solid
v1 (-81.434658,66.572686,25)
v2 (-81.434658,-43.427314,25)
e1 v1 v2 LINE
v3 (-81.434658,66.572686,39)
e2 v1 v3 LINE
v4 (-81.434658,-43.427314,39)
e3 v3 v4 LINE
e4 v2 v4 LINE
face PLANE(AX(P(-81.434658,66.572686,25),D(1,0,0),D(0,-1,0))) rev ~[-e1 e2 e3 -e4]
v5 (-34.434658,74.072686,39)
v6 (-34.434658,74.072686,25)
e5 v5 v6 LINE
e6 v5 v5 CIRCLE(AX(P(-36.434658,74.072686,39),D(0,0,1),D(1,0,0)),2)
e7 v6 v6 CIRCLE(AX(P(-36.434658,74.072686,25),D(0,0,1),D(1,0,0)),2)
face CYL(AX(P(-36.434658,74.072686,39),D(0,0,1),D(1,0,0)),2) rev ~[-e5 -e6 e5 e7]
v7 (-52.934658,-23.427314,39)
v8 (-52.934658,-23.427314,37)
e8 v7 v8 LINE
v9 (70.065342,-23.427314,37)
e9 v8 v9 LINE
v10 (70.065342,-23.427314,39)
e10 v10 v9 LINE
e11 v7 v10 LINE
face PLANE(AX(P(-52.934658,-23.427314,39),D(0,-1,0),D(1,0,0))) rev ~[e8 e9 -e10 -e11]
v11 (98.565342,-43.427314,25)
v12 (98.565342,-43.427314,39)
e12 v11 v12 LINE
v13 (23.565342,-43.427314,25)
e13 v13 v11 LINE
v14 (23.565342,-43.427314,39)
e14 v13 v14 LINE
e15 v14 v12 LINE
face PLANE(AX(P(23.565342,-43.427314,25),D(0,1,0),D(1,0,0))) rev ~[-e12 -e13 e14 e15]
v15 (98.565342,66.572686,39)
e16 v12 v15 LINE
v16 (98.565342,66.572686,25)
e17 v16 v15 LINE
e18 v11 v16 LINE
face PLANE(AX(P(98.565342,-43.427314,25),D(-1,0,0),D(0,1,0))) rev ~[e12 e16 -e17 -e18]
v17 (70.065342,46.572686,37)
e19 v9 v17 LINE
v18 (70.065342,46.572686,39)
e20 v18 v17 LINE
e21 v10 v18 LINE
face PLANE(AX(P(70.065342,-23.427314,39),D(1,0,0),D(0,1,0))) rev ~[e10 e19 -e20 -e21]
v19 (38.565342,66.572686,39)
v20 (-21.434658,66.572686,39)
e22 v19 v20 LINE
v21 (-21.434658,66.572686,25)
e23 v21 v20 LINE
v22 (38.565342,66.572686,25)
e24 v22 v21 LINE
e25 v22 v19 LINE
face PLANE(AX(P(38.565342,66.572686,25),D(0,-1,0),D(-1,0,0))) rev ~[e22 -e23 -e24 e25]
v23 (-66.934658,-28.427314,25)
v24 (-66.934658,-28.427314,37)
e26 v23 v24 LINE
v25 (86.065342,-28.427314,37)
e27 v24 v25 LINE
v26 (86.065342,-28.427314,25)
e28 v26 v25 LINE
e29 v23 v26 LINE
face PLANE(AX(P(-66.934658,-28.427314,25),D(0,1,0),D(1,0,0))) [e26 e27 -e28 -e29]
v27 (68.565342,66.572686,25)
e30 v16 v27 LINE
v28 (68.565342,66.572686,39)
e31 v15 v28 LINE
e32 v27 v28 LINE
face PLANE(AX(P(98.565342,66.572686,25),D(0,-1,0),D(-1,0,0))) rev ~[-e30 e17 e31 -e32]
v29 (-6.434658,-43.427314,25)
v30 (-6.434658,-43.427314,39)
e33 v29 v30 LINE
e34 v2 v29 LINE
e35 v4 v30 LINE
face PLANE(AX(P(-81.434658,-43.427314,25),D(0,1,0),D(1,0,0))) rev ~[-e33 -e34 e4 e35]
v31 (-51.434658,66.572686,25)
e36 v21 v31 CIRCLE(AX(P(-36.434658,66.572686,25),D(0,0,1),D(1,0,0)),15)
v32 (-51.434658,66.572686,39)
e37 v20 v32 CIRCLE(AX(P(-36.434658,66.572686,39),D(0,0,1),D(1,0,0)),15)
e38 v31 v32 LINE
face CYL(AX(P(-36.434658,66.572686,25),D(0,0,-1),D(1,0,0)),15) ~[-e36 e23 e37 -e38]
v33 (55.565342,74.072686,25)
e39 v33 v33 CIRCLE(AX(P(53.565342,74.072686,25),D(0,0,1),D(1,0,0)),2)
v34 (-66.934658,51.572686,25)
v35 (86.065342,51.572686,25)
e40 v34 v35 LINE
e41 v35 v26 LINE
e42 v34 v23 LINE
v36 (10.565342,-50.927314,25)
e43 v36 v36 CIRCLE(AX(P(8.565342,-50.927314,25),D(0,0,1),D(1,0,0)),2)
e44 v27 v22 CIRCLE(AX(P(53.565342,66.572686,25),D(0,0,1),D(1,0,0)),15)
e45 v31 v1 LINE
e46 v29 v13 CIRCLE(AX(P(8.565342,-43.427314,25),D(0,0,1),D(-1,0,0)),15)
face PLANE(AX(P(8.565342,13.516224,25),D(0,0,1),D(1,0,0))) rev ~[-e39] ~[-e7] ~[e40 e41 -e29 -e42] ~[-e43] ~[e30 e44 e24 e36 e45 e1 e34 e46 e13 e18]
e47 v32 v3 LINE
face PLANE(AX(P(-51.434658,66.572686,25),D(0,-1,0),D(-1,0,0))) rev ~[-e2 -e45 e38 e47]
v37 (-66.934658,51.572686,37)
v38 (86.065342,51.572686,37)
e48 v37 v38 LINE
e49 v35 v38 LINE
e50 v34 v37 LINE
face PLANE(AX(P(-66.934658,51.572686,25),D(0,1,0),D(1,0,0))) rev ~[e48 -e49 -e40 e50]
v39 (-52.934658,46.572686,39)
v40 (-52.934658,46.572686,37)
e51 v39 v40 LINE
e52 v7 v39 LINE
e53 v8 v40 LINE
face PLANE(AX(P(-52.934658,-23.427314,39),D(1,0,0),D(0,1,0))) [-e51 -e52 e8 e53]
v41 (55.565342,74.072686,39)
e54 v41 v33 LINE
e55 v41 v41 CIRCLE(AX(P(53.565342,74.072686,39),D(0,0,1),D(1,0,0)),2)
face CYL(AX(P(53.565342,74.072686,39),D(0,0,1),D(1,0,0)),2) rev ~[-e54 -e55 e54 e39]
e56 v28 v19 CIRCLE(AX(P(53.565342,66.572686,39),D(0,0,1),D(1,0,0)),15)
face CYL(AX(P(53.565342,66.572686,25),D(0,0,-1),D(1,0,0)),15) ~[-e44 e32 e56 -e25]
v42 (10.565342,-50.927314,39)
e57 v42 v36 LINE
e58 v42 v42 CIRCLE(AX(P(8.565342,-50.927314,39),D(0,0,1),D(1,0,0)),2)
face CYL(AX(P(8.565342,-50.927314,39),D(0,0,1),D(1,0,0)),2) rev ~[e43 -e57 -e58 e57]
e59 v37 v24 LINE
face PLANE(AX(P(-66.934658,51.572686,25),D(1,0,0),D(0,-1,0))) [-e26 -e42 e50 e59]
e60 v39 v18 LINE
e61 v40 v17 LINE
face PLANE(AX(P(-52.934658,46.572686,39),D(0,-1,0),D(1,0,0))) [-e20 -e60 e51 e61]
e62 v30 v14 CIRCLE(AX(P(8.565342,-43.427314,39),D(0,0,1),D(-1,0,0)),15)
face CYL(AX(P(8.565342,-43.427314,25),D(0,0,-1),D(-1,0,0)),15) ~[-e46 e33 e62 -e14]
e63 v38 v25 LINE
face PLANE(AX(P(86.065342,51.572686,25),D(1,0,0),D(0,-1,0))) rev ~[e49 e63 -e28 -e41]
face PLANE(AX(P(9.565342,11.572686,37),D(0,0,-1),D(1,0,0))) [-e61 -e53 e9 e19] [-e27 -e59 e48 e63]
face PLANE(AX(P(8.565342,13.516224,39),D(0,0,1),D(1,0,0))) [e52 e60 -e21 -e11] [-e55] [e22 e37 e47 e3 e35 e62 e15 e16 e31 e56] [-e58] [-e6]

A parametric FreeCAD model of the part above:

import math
import FreeCAD as App
import Part
import Sketcher

V = App.Vector

doc = App.newDocument("Part")
body = doc.addObject("PartDesign::Body", "Body")

sketch1 = doc.addObject("Sketcher::SketchObject", "Sketch")
body.addObject(sketch1)
sketch1.AttachmentSupport = (doc.XY_Plane, [""])
sketch1.MapMode = "FlatFace"
sketch1.addGeometry([
    Part.LineSegment(V(-51.4, 66.6, 0), V(-81.4, 66.6, 0)),
    Part.LineSegment(V(-81.4, 66.6, 0), V(-81.4, -43.4, 0)),
    Part.LineSegment(V(-81.4, -43.4, 0), V(-6.4, -43.4, 0)),
    Part.ArcOfCircle(Part.Circle(V(8.6, -43.4, 0), V(0, 0, 1), 15), math.radians(180), math.radians(360)),
    Part.LineSegment(V(23.6, -43.4, 0), V(98.6, -43.4, 0)),
    Part.LineSegment(V(98.6, -43.4, 0), V(98.6, 66.6, 0)),
    Part.LineSegment(V(98.6, 66.6, 0), V(68.6, 66.6, 0)),
    Part.ArcOfCircle(Part.Circle(V(53.6, 66.6, 0), V(0, 0, 1), 15), math.radians(0), math.radians(180)),
    Part.LineSegment(V(38.6, 66.6, 0), V(-21.4, 66.6, 0)),
    Part.ArcOfCircle(Part.Circle(V(-36.4, 66.6, 0), V(0, 0, 1), 15), math.radians(0), math.radians(180)),
    Part.Circle(V(8.6, -50.9, 0), V(0, 0, 1), 2),
    Part.Circle(V(-36.4, 74.1, 0), V(0, 0, 1), 2),
    Part.Circle(V(53.6, 74.1, 0), V(0, 0, 1), 2),
], False)
sketch1.addConstraint([
    Sketcher.Constraint("Coincident", 0, 2, 1, 1),
    Sketcher.Constraint("Coincident", 1, 2, 2, 1),
    Sketcher.Constraint("Coincident", 2, 2, 3, 1),
    Sketcher.Constraint("Coincident", 3, 2, 4, 1),
    Sketcher.Constraint("Coincident", 4, 2, 5, 1),
    Sketcher.Constraint("Coincident", 5, 2, 6, 1),
    Sketcher.Constraint("Coincident", 6, 2, 7, 1),
    Sketcher.Constraint("Coincident", 7, 2, 8, 1),
    Sketcher.Constraint("Coincident", 8, 2, 9, 1),
    Sketcher.Constraint("Coincident", 9, 2, 0, 1),
    Sketcher.Constraint("Horizontal", 0),
    Sketcher.Constraint("Vertical", 1),
    Sketcher.Constraint("Horizontal", 2),
    Sketcher.Constraint("Horizontal", 4),
    Sketcher.Constraint("Vertical", 5),
    Sketcher.Constraint("Horizontal", 6),
    Sketcher.Constraint("Horizontal", 8),
    Sketcher.Constraint("Equal", 3, 7),
    Sketcher.Constraint("Equal", 7, 9),
    Sketcher.Constraint("Equal", 10, 11),
    Sketcher.Constraint("Equal", 11, 12),
    Sketcher.Constraint("Horizontal", 7, 3, 9, 3),
    Sketcher.Constraint("Horizontal", 11, 3, 12, 3),
    Sketcher.Constraint("Horizontal", 9, 3, 0, 2),
    Sketcher.Constraint("Horizontal", 3, 3, 1, 2),
    Sketcher.Constraint("Horizontal", 2, 2, 3, 2),
    Sketcher.Constraint("Horizontal", 0, 2, 5, 2),
    Sketcher.Constraint("Horizontal", 6, 2, 7, 2),
    Sketcher.Constraint("Vertical", 3, 3, 10, 3),
    Sketcher.Constraint("Vertical", 9, 3, 11, 3),
    Sketcher.Constraint("Vertical", 7, 3, 12, 3),
    Sketcher.Constraint("Equal", 2, 4),
    Sketcher.Constraint("Equal", 0, 6),
    Sketcher.Constraint("Diameter", 10, 4.0),
    Sketcher.Constraint("Radius", 3, 15.0),
    Sketcher.Constraint("DistanceX", 0, 2, 0, 1, 30.0),
    Sketcher.Constraint("DistanceX", 2, 1, 2, 2, 75.0),
    Sketcher.Constraint("DistanceY", 1, 2, 1, 1, 110.0),
    Sketcher.Constraint("DistanceY", 10, 3, 11, 3, 125.0),
    Sketcher.Constraint("DistanceY", 10, 3, 3, 3, 7.5),
    Sketcher.Constraint("DistanceX", -1, 1, 3, 3, 8.565342),
    Sketcher.Constraint("DistanceY", 3, 3, -1, 1, 43.427314),
])
pad1 = doc.addObject("PartDesign::Pad", "Pad")
body.addObject(pad1)
pad1.Profile = sketch1
pad1.Length = 25

sketch2 = doc.addObject("Sketcher::SketchObject", "Sketch001")
body.addObject(sketch2)
sketch2.AttachmentSupport = (doc.YZ_Plane, [""])
sketch2.MapMode = "FlatFace"
sketch2.AttachmentOffset = App.Placement(V(0, 0, 98.565342), App.Rotation())
sketch2.addGeometry([
    Part.LineSegment(V(43, 0, 0), V(23, 0, 0)),
    Part.ArcOfCircle(Part.Circle(V(12, 0, 0), V(0, 0, 1), 11), math.radians(0), math.radians(180)),
    Part.LineSegment(V(0, 0, 0), V(-20, 0, 0)),
    Part.ArcOfCircle(Part.Circle(V(-65, -60, 0), V(0, 0, 1), 75), math.radians(53), math.radians(90)),
    Part.LineSegment(V(-65, 15, 0), V(-65, -16, 0)),
    Part.LineSegment(V(-65, -16, 0), V(88, -16, 0)),
    Part.LineSegment(V(88, -16, 0), V(88, 15, 0)),
    Part.ArcOfCircle(Part.Circle(V(88, -60, 0), V(0, 0, 1), 75), math.radians(90), math.radians(127)),
], False)
sketch2.addConstraint([
    Sketcher.Constraint("Coincident", 0, 2, 1, 1),
    Sketcher.Constraint("Coincident", 1, 2, 2, 1),
    Sketcher.Constraint("Coincident", 2, 2, 3, 1),
    Sketcher.Constraint("Coincident", 3, 2, 4, 1),
    Sketcher.Constraint("Coincident", 4, 2, 5, 1),
    Sketcher.Constraint("Coincident", 5, 2, 6, 1),
    Sketcher.Constraint("Coincident", 6, 2, 7, 1),
    Sketcher.Constraint("Coincident", 7, 2, 0, 1),
    Sketcher.Constraint("Horizontal", 0),
    Sketcher.Constraint("Horizontal", 2),
    Sketcher.Constraint("Vertical", 4),
    Sketcher.Constraint("Horizontal", 5),
    Sketcher.Constraint("Vertical", 6),
    Sketcher.Constraint("PointOnObject", 1, 3, -1),
    Sketcher.Constraint("PointOnObject", 0, 2, -1),
    Sketcher.Constraint("PointOnObject", 1, 2, -1),
    Sketcher.Constraint("Horizontal", 3, 2, 6, 2),
    Sketcher.Constraint("Equal", 0, 2),
    Sketcher.Constraint("Radius", 1, 11.25),
    Sketcher.Constraint("DistanceX", 2, 2, -1, 1, 20.0),
    Sketcher.Constraint("DistanceY", -1, 1, 3, 2, 15.0),
    Sketcher.Constraint("Radius", 7, 74.70883),
    Sketcher.Constraint("Radius", 3, 74.708835),
    Sketcher.Constraint("DistanceX", 0, 2, 0, 1, 20.322687),
    Sketcher.Constraint("DistanceX", 5, 1, 5, 2, 152.951057),
    Sketcher.Constraint("DistanceY", 4, 2, 4, 1, 31.413443),
    Sketcher.Constraint("DistanceX", 3, 2, 1, 2, 65.225528),
])
pocket1 = doc.addObject("PartDesign::Pocket", "Pocket")
body.addObject(pocket1)
pocket1.Profile = sketch2
pocket1.Length = 276

sketch3 = doc.addObject("Sketcher::SketchObject", "Sketch002")
body.addObject(sketch3)
sketch3.AttachmentSupport = (doc.XY_Plane, [""])
sketch3.MapMode = "FlatFace"
sketch3.AttachmentOffset = App.Placement(V(0, 0, 25), App.Rotation())
sketch3.addGeometry([
    Part.Circle(V(-56.4, 32.9, 0), V(0, 0, 1), 2),
    Part.Circle(V(73.6, 32.9, 0), V(0, 0, 1), 2),
    Part.Circle(V(-56.4, -9.7, 0), V(0, 0, 1), 2),
    Part.Circle(V(73.6, -9.7, 0), V(0, 0, 1), 2),
], False)
sketch3.addConstraint([
    Sketcher.Constraint("Equal", 0, 1),
    Sketcher.Constraint("Equal", 1, 2),
    Sketcher.Constraint("Equal", 2, 3),
    Sketcher.Constraint("Horizontal", 0, 3, 1, 3),
    Sketcher.Constraint("Horizontal", 2, 3, 3, 3),
    Sketcher.Constraint("Vertical", 0, 3, 2, 3),
    Sketcher.Constraint("Vertical", 1, 3, 3, 3),
    Sketcher.Constraint("Diameter", 0, 4.0),
    Sketcher.Constraint("DistanceX", 0, 3, 1, 3, 130.0),
    Sketcher.Constraint("DistanceY", 2, 3, 0, 3, 42.6),
    Sketcher.Constraint("DistanceX", -1, 1, 1, 3, 73.565342),
    Sketcher.Constraint("DistanceY", -1, 1, 0, 3, 32.872686),
])
pocket2 = doc.addObject("PartDesign::Pocket", "Pocket001")
body.addObject(pocket2)
pocket2.Profile = sketch3
pocket2.Length = 84.8

sketch4 = doc.addObject("Sketcher::SketchObject", "Sketch003")
body.addObject(sketch4)
sketch4.AttachmentSupport = (doc.XY_Plane, [""])
sketch4.MapMode = "FlatFace"
sketch4.AttachmentOffset = App.Placement(V(0, 0, 25), App.Rotation())
sketch4.addGeometry([
    Part.Circle(V(-56.4, 32.9, 0), V(0, 0, 1), 2.5),
    Part.Circle(V(73.6, 32.9, 0), V(0, 0, 1), 2.5),
    Part.Circle(V(73.6, -9.7, 0), V(0, 0, 1), 2.5),
    Part.Circle(V(-56.4, -9.7, 0), V(0, 0, 1), 2.5),
], False)
sketch4.addConstraint([
    Sketcher.Constraint("Equal", 0, 1),
    Sketcher.Constraint("Equal", 1, 2),
    Sketcher.Constraint("Equal", 2, 3),
    Sketcher.Constraint("Horizontal", 0, 3, 1, 3),
    Sketcher.Constraint("Horizontal", 2, 3, 3, 3),
    Sketcher.Constraint("Vertical", 1, 3, 2, 3),
    Sketcher.Constraint("Vertical", 0, 3, 3, 3),
    Sketcher.Constraint("Diameter", 0, 5.0),
    Sketcher.Constraint("DistanceX", 0, 3, 1, 3, 130.0),
    Sketcher.Constraint("DistanceY", 2, 3, 1, 3, 42.6),
    Sketcher.Constraint("DistanceX", -1, 1, 1, 3, 73.565342),
    Sketcher.Constraint("DistanceY", -1, 1, 0, 3, 32.872686),
])
pocket3 = doc.addObject("PartDesign::Pocket", "Pocket002")
body.addObject(pocket3)
pocket3.Profile = sketch4
pocket3.Length = 5
body2 = doc.addObject("PartDesign::Body", "Body001")

sketch5 = doc.addObject("Sketcher::SketchObject", "Sketch004")
body2.addObject(sketch5)
sketch5.AttachmentSupport = (doc.getObject("XY_Plane001"), [""])
sketch5.MapMode = "FlatFace"
sketch5.AttachmentOffset = App.Placement(V(0, 0, 25), App.Rotation())
sketch5.addGeometry([
    Part.LineSegment(V(-81, -43, 0), V(-6, -43, 0)),
    Part.ArcOfCircle(Part.Circle(V(9, -43, 0), V(0, 0, 1), 15), math.radians(180), math.radians(360)),
    Part.LineSegment(V(24, -43, 0), V(99, -43, 0)),
    Part.LineSegment(V(99, -43, 0), V(99, 67, 0)),
    Part.LineSegment(V(99, 67, 0), V(69, 67, 0)),
    Part.ArcOfCircle(Part.Circle(V(54, 67, 0), V(0, 0, 1), 15), math.radians(0), math.radians(180)),
    Part.LineSegment(V(39, 67, 0), V(-21, 67, 0)),
    Part.ArcOfCircle(Part.Circle(V(-36, 67, 0), V(0, 0, 1), 15), math.radians(0), math.radians(180)),
    Part.LineSegment(V(-51, 67, 0), V(-81, 67, 0)),
    Part.LineSegment(V(-81, 67, 0), V(-81, -43, 0)),
], False)
sketch5.addConstraint([
    Sketcher.Constraint("Coincident", 0, 2, 1, 1),
    Sketcher.Constraint("Coincident", 1, 2, 2, 1),
    Sketcher.Constraint("Coincident", 2, 2, 3, 1),
    Sketcher.Constraint("Coincident", 3, 2, 4, 1),
    Sketcher.Constraint("Coincident", 4, 2, 5, 1),
    Sketcher.Constraint("Coincident", 5, 2, 6, 1),
    Sketcher.Constraint("Coincident", 6, 2, 7, 1),
    Sketcher.Constraint("Coincident", 7, 2, 8, 1),
    Sketcher.Constraint("Coincident", 8, 2, 9, 1),
    Sketcher.Constraint("Coincident", 9, 2, 0, 1),
    Sketcher.Constraint("Horizontal", 0),
    Sketcher.Constraint("Horizontal", 2),
    Sketcher.Constraint("Vertical", 3),
    Sketcher.Constraint("Horizontal", 4),
    Sketcher.Constraint("Horizontal", 6),
    Sketcher.Constraint("Horizontal", 8),
    Sketcher.Constraint("Vertical", 9),
    Sketcher.Constraint("Equal", 1, 5),
    Sketcher.Constraint("Equal", 5, 7),
    Sketcher.Constraint("Horizontal", 5, 3, 7, 3),
    Sketcher.Constraint("Horizontal", 1, 3, 0, 2),
    Sketcher.Constraint("Horizontal", 0, 2, 1, 2),
    Sketcher.Constraint("Horizontal", 7, 3, 3, 2),
    Sketcher.Constraint("Horizontal", 4, 2, 5, 2),
    Sketcher.Constraint("Horizontal", 6, 2, 7, 2),
    Sketcher.Constraint("Equal", 0, 2),
    Sketcher.Constraint("Equal", 4, 8),
    Sketcher.Constraint("Radius", 1, 15.0),
    Sketcher.Constraint("DistanceX", 0, 1, 0, 2, 75.0),
    Sketcher.Constraint("DistanceX", 4, 2, 4, 1, 30.0),
    Sketcher.Constraint("DistanceY", 3, 1, 3, 2, 110.0),
    Sketcher.Constraint("DistanceX", -1, 1, 1, 3, 8.565342),
    Sketcher.Constraint("DistanceY", 1, 3, -1, 1, 43.427314),
])
pad2 = doc.addObject("PartDesign::Pad", "Pad001")
body2.addObject(pad2)
pad2.Profile = sketch5
pad2.Length = 14

sketch6 = doc.addObject("Sketcher::SketchObject", "Sketch005")
body2.addObject(sketch6)
sketch6.AttachmentSupport = (doc.getObject("XY_Plane001"), [""])
sketch6.MapMode = "FlatFace"
sketch6.AttachmentOffset = App.Placement(V(0, 0, 39), App.Rotation())
sketch6.addGeometry([
    Part.LineSegment(V(-53, 47, 0), V(-53, -23, 0)),
    Part.LineSegment(V(-53, -23, 0), V(70, -23, 0)),
    Part.LineSegment(V(70, -23, 0), V(70, 47, 0)),
    Part.LineSegment(V(70, 47, 0), V(-53, 47, 0)),
], False)
sketch6.addConstraint([
    Sketcher.Constraint("Coincident", 0, 2, 1, 1),
    Sketcher.Constraint("Coincident", 1, 2, 2, 1),
    Sketcher.Constraint("Coincident", 2, 2, 3, 1),
    Sketcher.Constraint("Coincident", 3, 2, 0, 1),
    Sketcher.Constraint("Vertical", 0),
    Sketcher.Constraint("Horizontal", 1),
    Sketcher.Constraint("Vertical", 2),
    Sketcher.Constraint("Horizontal", 3),
    Sketcher.Constraint("DistanceX", 1, 1, 1, 2, 123.0),
    Sketcher.Constraint("DistanceY", 0, 2, 0, 1, 70.0),
    Sketcher.Constraint("DistanceX", -1, 1, 1, 2, 70.065342),
    Sketcher.Constraint("DistanceY", 0, 2, -1, 1, 23.427314),
])
pocket4 = doc.addObject("PartDesign::Pocket", "Pocket003")
body2.addObject(pocket4)
pocket4.Profile = sketch6
pocket4.Length = 25

sketch7 = doc.addObject("Sketcher::SketchObject", "Sketch006")
body2.addObject(sketch7)
sketch7.AttachmentSupport = (doc.getObject("XY_Plane001"), [""])
sketch7.MapMode = "FlatFace"
sketch7.AttachmentOffset = App.Placement(V(0, 0, 25), App.Rotation())
sketch7.addGeometry([
    Part.LineSegment(V(-67, -28, 0), V(-67, 52, 0)),
    Part.LineSegment(V(-67, 52, 0), V(86, 52, 0)),
    Part.LineSegment(V(86, 52, 0), V(86, -28, 0)),
    Part.LineSegment(V(86, -28, 0), V(-67, -28, 0)),
], False)
sketch7.addConstraint([
    Sketcher.Constraint("Coincident", 0, 2, 1, 1),
    Sketcher.Constraint("Coincident", 1, 2, 2, 1),
    Sketcher.Constraint("Coincident", 2, 2, 3, 1),
    Sketcher.Constraint("Coincident", 3, 2, 0, 1),
    Sketcher.Constraint("Vertical", 0),
    Sketcher.Constraint("Horizontal", 1),
    Sketcher.Constraint("Vertical", 2),
    Sketcher.Constraint("Horizontal", 3),
    Sketcher.Constraint("DistanceX", 1, 1, 1, 2, 153.0),
    Sketcher.Constraint("DistanceY", 0, 1, 0, 2, 80.0),
    Sketcher.Constraint("DistanceX", 0, 2, -1, 1, 66.934658),
    Sketcher.Constraint("DistanceY", -1, 1, 0, 2, 51.572686),
])
pocket5 = doc.addObject("PartDesign::Pocket", "Pocket004")
body2.addObject(pocket5)
pocket5.Profile = sketch7
pocket5.Length = 12
pocket5.Reversed = True

sketch8 = doc.addObject("Sketcher::SketchObject", "Sketch007")
body2.addObject(sketch8)
sketch8.AttachmentSupport = (doc.getObject("XY_Plane001"), [""])
sketch8.MapMode = "FlatFace"
sketch8.AttachmentOffset = App.Placement(V(0, 0, 39), App.Rotation())
sketch8.addGeometry([
    Part.Circle(V(53.6, 74.1, 0), V(0, 0, 1), 2),
    Part.Circle(V(-36.4, 74.1, 0), V(0, 0, 1), 2),
    Part.Circle(V(8.6, -50.9, 0), V(0, 0, 1), 2),
], False)
sketch8.addConstraint([
    Sketcher.Constraint("Equal", 0, 1),
    Sketcher.Constraint("Equal", 1, 2),
    Sketcher.Constraint("Horizontal", 0, 3, 1, 3),
    Sketcher.Constraint("Diameter", 0, 4.0),
    Sketcher.Constraint("DistanceX", 1, 3, 0, 3, 90.0),
    Sketcher.Constraint("DistanceX", 2, 3, 0, 3, 45.0),
    Sketcher.Constraint("DistanceY", 2, 3, 0, 3, 125.0),
    Sketcher.Constraint("DistanceX", -1, 1, 2, 3, 8.565342),
    Sketcher.Constraint("DistanceY", -1, 1, 0, 3, 74.072686),
])
pocket6 = doc.addObject("PartDesign::Pocket", "Pocket005")
body2.addObject(pocket6)
pocket6.Profile = sketch8
pocket6.Length = 25
body.Visibility = False

doc.recompute()
